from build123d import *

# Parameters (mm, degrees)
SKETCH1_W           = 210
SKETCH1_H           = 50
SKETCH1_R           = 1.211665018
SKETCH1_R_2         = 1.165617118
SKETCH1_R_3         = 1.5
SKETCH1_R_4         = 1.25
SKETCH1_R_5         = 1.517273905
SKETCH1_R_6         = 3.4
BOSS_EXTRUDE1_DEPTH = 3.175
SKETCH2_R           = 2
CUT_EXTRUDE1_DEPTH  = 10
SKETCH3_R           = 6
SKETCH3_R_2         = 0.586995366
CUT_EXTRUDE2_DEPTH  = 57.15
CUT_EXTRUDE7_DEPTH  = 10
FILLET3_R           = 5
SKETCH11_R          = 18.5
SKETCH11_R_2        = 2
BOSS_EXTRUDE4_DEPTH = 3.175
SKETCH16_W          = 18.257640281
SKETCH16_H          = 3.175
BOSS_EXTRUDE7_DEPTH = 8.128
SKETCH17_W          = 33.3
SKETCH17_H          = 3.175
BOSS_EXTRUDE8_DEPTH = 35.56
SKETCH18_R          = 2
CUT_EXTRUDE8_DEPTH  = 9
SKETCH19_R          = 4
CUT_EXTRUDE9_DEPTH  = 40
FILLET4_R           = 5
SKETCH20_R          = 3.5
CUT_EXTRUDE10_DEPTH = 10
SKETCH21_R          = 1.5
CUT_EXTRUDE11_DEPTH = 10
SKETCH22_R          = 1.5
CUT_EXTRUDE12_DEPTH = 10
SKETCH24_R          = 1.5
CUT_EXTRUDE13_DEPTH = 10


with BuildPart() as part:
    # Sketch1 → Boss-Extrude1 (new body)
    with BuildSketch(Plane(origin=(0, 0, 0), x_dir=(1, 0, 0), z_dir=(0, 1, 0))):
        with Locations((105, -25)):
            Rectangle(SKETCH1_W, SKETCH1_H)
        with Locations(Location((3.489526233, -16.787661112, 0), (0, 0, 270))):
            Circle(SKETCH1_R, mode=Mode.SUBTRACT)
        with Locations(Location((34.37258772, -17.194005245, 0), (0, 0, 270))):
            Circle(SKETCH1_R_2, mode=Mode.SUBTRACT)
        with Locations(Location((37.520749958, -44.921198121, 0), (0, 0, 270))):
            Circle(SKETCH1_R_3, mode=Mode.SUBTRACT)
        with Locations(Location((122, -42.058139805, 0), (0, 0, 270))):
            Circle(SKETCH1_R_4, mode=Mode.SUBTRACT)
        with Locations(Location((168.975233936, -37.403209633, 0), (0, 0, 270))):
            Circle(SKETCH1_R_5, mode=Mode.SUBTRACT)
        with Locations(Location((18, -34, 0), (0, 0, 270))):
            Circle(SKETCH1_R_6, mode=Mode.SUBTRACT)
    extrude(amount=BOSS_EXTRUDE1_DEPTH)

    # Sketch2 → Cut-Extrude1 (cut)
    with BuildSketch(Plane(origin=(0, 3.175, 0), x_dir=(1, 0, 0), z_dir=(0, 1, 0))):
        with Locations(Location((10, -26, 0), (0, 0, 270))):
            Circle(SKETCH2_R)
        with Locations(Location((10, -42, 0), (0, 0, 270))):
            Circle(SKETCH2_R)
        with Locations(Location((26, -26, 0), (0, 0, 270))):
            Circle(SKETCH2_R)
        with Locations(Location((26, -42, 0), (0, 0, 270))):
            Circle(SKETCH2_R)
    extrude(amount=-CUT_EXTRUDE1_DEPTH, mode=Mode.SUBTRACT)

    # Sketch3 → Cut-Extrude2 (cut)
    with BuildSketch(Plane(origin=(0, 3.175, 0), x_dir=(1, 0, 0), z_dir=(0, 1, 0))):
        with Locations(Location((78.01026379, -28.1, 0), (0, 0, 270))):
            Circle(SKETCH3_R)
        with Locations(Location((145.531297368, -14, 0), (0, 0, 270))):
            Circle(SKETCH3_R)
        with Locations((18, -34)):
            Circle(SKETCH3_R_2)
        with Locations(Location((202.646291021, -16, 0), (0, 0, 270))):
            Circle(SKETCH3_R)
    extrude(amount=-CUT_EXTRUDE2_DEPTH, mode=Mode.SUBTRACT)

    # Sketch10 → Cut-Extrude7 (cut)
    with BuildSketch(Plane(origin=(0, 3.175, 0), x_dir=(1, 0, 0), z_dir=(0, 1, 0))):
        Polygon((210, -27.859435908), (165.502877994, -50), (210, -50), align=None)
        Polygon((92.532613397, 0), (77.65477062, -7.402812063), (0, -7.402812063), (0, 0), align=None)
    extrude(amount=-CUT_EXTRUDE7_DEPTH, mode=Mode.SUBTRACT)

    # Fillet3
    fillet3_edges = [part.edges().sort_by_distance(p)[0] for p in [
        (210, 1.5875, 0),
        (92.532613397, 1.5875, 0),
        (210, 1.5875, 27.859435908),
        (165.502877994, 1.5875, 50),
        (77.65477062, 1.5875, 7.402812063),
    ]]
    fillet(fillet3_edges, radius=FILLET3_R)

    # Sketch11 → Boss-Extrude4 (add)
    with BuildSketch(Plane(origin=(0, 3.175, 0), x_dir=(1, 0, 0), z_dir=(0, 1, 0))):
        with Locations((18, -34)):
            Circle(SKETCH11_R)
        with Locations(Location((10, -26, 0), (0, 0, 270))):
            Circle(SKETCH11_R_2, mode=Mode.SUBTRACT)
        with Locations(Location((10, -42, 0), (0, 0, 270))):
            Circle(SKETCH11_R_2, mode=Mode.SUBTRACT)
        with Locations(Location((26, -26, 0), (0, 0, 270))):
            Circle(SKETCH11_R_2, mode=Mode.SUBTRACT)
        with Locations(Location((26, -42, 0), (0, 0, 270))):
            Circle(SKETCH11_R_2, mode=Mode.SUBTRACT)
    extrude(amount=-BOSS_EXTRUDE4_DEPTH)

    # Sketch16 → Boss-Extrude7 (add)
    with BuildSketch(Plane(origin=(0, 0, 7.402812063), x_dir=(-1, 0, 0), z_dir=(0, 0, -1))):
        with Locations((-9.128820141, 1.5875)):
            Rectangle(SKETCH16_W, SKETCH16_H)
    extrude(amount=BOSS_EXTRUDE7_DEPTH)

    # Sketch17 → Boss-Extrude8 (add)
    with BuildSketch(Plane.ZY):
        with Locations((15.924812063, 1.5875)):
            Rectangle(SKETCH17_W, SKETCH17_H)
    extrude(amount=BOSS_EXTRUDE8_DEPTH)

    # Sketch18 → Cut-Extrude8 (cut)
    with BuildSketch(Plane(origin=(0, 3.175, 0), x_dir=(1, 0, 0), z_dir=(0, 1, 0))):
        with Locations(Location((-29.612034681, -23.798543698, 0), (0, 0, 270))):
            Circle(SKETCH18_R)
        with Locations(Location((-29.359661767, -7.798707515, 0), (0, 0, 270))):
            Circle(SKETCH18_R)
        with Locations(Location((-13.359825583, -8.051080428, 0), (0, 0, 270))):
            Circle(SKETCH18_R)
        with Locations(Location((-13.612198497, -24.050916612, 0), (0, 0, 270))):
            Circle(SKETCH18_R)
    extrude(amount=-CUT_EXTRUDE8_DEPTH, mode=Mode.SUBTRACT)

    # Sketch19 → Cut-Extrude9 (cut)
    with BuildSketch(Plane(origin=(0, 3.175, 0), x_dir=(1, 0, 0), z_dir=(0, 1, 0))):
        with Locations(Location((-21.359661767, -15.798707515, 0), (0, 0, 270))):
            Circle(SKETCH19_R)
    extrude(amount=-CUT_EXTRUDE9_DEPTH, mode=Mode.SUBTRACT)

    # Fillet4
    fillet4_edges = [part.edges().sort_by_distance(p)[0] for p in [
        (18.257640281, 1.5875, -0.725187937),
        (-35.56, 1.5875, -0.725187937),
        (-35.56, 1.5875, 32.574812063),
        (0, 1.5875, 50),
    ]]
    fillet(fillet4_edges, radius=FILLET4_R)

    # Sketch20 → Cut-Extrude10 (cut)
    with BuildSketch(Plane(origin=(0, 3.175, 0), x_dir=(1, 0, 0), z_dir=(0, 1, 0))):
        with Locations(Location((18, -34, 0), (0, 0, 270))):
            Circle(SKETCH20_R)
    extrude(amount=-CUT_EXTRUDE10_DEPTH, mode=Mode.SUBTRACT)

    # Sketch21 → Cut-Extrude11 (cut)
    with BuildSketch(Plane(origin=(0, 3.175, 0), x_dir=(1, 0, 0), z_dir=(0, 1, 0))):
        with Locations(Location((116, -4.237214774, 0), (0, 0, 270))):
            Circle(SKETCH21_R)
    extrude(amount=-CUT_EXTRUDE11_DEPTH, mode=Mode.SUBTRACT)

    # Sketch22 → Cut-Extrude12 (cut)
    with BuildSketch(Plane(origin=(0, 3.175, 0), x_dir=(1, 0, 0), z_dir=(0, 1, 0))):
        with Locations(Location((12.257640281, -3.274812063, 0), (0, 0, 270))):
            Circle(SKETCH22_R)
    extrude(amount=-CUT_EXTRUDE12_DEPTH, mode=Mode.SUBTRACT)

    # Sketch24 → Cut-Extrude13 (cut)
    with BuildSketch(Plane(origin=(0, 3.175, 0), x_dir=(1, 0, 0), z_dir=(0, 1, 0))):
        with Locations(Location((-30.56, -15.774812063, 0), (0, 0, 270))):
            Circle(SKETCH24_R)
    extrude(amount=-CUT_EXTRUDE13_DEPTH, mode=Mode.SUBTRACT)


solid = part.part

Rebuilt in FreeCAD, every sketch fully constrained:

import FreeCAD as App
import Part
import Sketcher
from FreeCAD import Vector
Q = App.Units.Quantity


def edges_at(feature, points):
    """Names of the edges that pass closest to the given points."""
    edges = feature.Shape.Edges
    near = lambda p: min(range(len(edges)), key=lambda i: edges[i].distToShape(Part.Vertex(*p))[0])
    return sorted({f"Edge{near(p) + 1}" for p in points})


def add_polygon(sketch, points):
    """Adds a closed chain of lines whose ends are joined by coincident constraints."""
    first, n = sketch.GeometryCount, len(points)
    for a, b in zip(points, points[1:] + points[:1]):
        sketch.addGeometry(Part.LineSegment(App.Vector(*a, 0), App.Vector(*b, 0)), False)
    for i in range(n):
        sketch.addConstraint(Sketcher.Constraint("Coincident", first + i, 2, first + (i + 1) % n, 1))

doc = App.newDocument("Part")
body = doc.addObject("PartDesign::Body", "Body")

# Sketch on XZ plane
sketch1 = doc.addObject("Sketcher::SketchObject", "Sketch")
body.addObject(sketch1)
sketch1.AttachmentSupport = (doc.XZ_Plane, [""])
sketch1.MapMode = "FlatFace"
add_polygon(sketch1, [(0, 0), (0, 50), (210, 50), (210, 0)])  # lines 0-3
sketch1.addGeometry(Part.Circle(Vector(37.5, 44.9, 0), Vector(0, 0, 1), 1.5), False)  # 4
sketch1.addGeometry(Part.Circle(Vector(18, 34, 0), Vector(0, 0, 1), 3.4), False)  # 5
sketch1.addGeometry(Part.Circle(Vector(122, 42.1, 0), Vector(0, 0, 1), 1.2), False)  # 6
sketch1.addGeometry(Part.Circle(Vector(169, 37.4, 0), Vector(0, 0, 1), 1.5), False)  # 7
sketch1.addGeometry(Part.Circle(Vector(3.5, 16.8, 0), Vector(0, 0, 1), 1.2), False)  # 8
sketch1.addGeometry(Part.Circle(Vector(34.4, 17.2, 0), Vector(0, 0, 1), 1.2), False)  # 9
sketch1.addConstraint([
    Sketcher.Constraint("Vertical", 0),
    Sketcher.Constraint("Horizontal", 1),
    Sketcher.Constraint("Vertical", 2),
    Sketcher.Constraint("Horizontal", 3),
    Sketcher.Constraint("Coincident", 3, 2, -1, 1),
    Sketcher.Constraint("Diameter", 4, Q("3 mm")),
    Sketcher.Constraint("Diameter", 5, Q("6.8 mm")),
    Sketcher.Constraint("Diameter", 6, Q("2.5 mm")),
    Sketcher.Constraint("DistanceX", 1, 1, 1, 2, Q("210 mm")),
    Sketcher.Constraint("DistanceY", 0, 1, 0, 2, Q("50 mm")),
    Sketcher.Constraint("DistanceX", -1, 1, 5, 3, Q("18 mm")),
    Sketcher.Constraint("DistanceY", -1, 1, 5, 3, Q("34 mm")),
    Sketcher.Constraint("DistanceX", -1, 1, 6, 3, Q("122 mm")),
    Sketcher.Constraint("Diameter", 8, Q("2.42333 mm")),
    Sketcher.Constraint("Diameter", 7, Q("3.034548 mm")),
    Sketcher.Constraint("Diameter", 9, Q("2.331234 mm")),
    Sketcher.Constraint("DistanceY", -1, 1, 4, 3, Q("44.921198 mm")),
    Sketcher.Constraint("DistanceX", -1, 1, 4, 3, Q("37.52075 mm")),
    Sketcher.Constraint("DistanceY", -1, 1, 6, 3, Q("42.05814 mm")),
    Sketcher.Constraint("DistanceY", -1, 1, 7, 3, Q("37.40321 mm")),
    Sketcher.Constraint("DistanceY", -1, 1, 8, 3, Q("16.787661 mm")),
    Sketcher.Constraint("DistanceX", 8, 3, 9, 3, Q("30.883061 mm")),
    Sketcher.Constraint("DistanceX", -1, 1, 7, 3, Q("168.975234 mm")),
    Sketcher.Constraint("DistanceX", -1, 1, 8, 3, Q("3.489526 mm")),
    Sketcher.Constraint("DistanceY", -1, 1, 9, 3, Q("17.194005 mm")),
])
pad1 = doc.addObject("PartDesign::Pad", "Pad")
body.addObject(pad1)
pad1.Profile = sketch1
pad1.Length = 3.175
pad1.Reversed = True

# Sketch on XZ plane
sketch2 = doc.addObject("Sketcher::SketchObject", "Sketch001")
body.addObject(sketch2)
sketch2.AttachmentSupport = (doc.XZ_Plane, [""])
sketch2.MapMode = "FlatFace"
sketch2.AttachmentOffset = App.Placement(Vector(0, 0, -3.175), App.Rotation())
sketch2.addGeometry([
    Part.Circle(Vector(10, 26, 0), Vector(0, 0, 1), 2),
    Part.Circle(Vector(10, 42, 0), Vector(0, 0, 1), 2),
    Part.Circle(Vector(26, 26, 0), Vector(0, 0, 1), 2),
    Part.Circle(Vector(26, 42, 0), Vector(0, 0, 1), 2),
], False)
sketch2.addConstraint([
    Sketcher.Constraint("Equal", 0, 1),
    Sketcher.Constraint("Equal", 1, 2),
    Sketcher.Constraint("Equal", 2, 3),
    Sketcher.Constraint("Horizontal", 0, 3, 2, 3),
    Sketcher.Constraint("Horizontal", 1, 3, 3, 3),
    Sketcher.Constraint("Vertical", 0, 3, 1, 3),
    Sketcher.Constraint("Vertical", 2, 3, 3, 3),
    Sketcher.Constraint("Diameter", 0, Q("4 mm")),
    Sketcher.Constraint("DistanceX", -1, 1, 0, 3, Q("10 mm")),
    Sketcher.Constraint("DistanceY", -1, 1, 0, 3, Q("26 mm")),
    Sketcher.Constraint("DistanceY", -1, 1, 1, 3, Q("42 mm")),
    Sketcher.Constraint("DistanceX", -1, 1, 2, 3, Q("26 mm")),
])
pocket1 = doc.addObject("PartDesign::Pocket", "Pocket")
body.addObject(pocket1)
pocket1.Profile = sketch2
pocket1.Length = 10
pocket1.Reversed = True

# Sketch on XZ plane
sketch3 = doc.addObject("Sketcher::SketchObject", "Sketch002")
body.addObject(sketch3)
sketch3.AttachmentSupport = (doc.XZ_Plane, [""])
sketch3.MapMode = "FlatFace"
sketch3.AttachmentOffset = App.Placement(Vector(0, 0, -3.175), App.Rotation())
sketch3.addGeometry([
    Part.Circle(Vector(78, 28.1, 0), Vector(0, 0, 1), 6),
    Part.Circle(Vector(145.5, 14, 0), Vector(0, 0, 1), 6),
    Part.Circle(Vector(18, 34, 0), Vector(0, 0, 1), 0.6),
    Part.Circle(Vector(202.6, 16, 0), Vector(0, 0, 1), 6),
], False)
sketch3.addConstraint([
    Sketcher.Constraint("Equal", 0, 1),
    Sketcher.Constraint("Equal", 1, 3),
    Sketcher.Constraint("Diameter", 0, Q("12 mm")),
    Sketcher.Constraint("DistanceY", -1, 1, 1, 3, Q("14 mm")),
    Sketcher.Constraint("DistanceX", -1, 1, 2, 3, Q("18 mm")),
    Sketcher.Constraint("DistanceY", -1, 1, 2, 3, Q("34 mm")),
    Sketcher.Constraint("DistanceY", -1, 1, 3, 3, Q("16 mm")),
    Sketcher.Constraint("DistanceY", -1, 1, 0, 3, Q("28.1 mm")),
    Sketcher.Constraint("Diameter", 2, Q("1.173991 mm")),
    Sketcher.Constraint("DistanceX", -1, 1, 3, 3, Q("202.646291 mm")),
    Sketcher.Constraint("DistanceX", -1, 1, 0, 3, Q("78.010264 mm")),
    Sketcher.Constraint("DistanceX", -1, 1, 1, 3, Q("145.531297 mm")),
])
pocket2 = doc.addObject("PartDesign::Pocket", "Pocket001")
body.addObject(pocket2)
pocket2.Profile = sketch3
pocket2.Length = 57.15
pocket2.Reversed = True

# Sketch on XZ plane
sketch4 = doc.addObject("Sketcher::SketchObject", "Sketch003")
body.addObject(sketch4)
sketch4.AttachmentSupport = (doc.XZ_Plane, [""])
sketch4.MapMode = "FlatFace"
sketch4.AttachmentOffset = App.Placement(Vector(0, 0, -3.175), App.Rotation())
add_polygon(sketch4, [(210, 28), (166, 50), (210, 50)])  # lines 0-2
add_polygon(sketch4, [(78, 7), (93, 0), (0, 0), (0, 7)])  # lines 3-6
sketch4.addConstraint([
    Sketcher.Constraint("Horizontal", 1),
    Sketcher.Constraint("Vertical", 2),
    Sketcher.Constraint("Horizontal", 4),
    Sketcher.Constraint("Vertical", 5),
    Sketcher.Constraint("Horizontal", 6),
    Sketcher.Constraint("Coincident", 4, 2, -1, 1),
    Sketcher.Constraint("Parallel", 0, 3),
    Sketcher.Constraint("DistanceY", -1, 1, 0, 2, Q("50 mm")),
    Sketcher.Constraint("DistanceX", -1, 1, 1, 2, Q("210 mm")),
    Sketcher.Constraint("DistanceX", 6, 1, 6, 2, Q("77.654771 mm")),
    Sketcher.Constraint("Distance", 0, Q("49.701091 mm")),
    Sketcher.Constraint("DistanceX", 1, 1, 1, 2, Q("44.497122 mm")),
    Sketcher.Constraint("DistanceX", 4, 2, 4, 1, Q("92.532613 mm")),
])
pocket3 = doc.addObject("PartDesign::Pocket", "Pocket002")
body.addObject(pocket3)
pocket3.Profile = sketch4
pocket3.Length = 10
pocket3.Reversed = True
doc.recompute()

fillet = doc.addObject("PartDesign::Fillet", "Fillet")
body.addObject(fillet)
fillet.Base = (pocket3, edges_at(pocket3, [
    (210, 1.587, 0),
    (92.533, 1.587, 0),
    (210, 1.587, 27.859),
    (165.503, 1.587, 50),
    (77.655, 1.587, 7.403),
]))
fillet.Radius = 5

# Sketch on XZ plane
sketch5 = doc.addObject("Sketcher::SketchObject", "Sketch004")
body.addObject(sketch5)
sketch5.AttachmentSupport = (doc.XZ_Plane, [""])
sketch5.MapMode = "FlatFace"
sketch5.AttachmentOffset = App.Placement(Vector(0, 0, -3.175), App.Rotation())
sketch5.addGeometry([
    Part.Circle(Vector(18, 34, 0), Vector(0, 0, 1), 18.5),  # 0
    Part.Circle(Vector(10, 42, 0), Vector(0, 0, 1), 2),  # 1
    Part.Circle(Vector(26, 42, 0), Vector(0, 0, 1), 2),  # 2
    Part.Circle(Vector(10, 26, 0), Vector(0, 0, 1), 2),  # 3
    Part.Circle(Vector(26, 26, 0), Vector(0, 0, 1), 2),  # 4
], False)
sketch5.addConstraint([
    Sketcher.Constraint("Equal", 1, 2),
    Sketcher.Constraint("Equal", 2, 3),
    Sketcher.Constraint("Equal", 3, 4),
    Sketcher.Constraint("Horizontal", 1, 3, 2, 3),
    Sketcher.Constraint("Horizontal", 3, 3, 4, 3),
    Sketcher.Constraint("Vertical", 1, 3, 3, 3),
    Sketcher.Constraint("Vertical", 2, 3, 4, 3),
    Sketcher.Constraint("Diameter", 0, Q("37 mm")),
    Sketcher.Constraint("Diameter", 1, Q("4 mm")),
    Sketcher.Constraint("DistanceX", -1, 1, 0, 3, Q("18 mm")),
    Sketcher.Constraint("DistanceY", -1, 1, 0, 3, Q("34 mm")),
    Sketcher.Constraint("DistanceX", -1, 1, 1, 3, Q("10 mm")),
    Sketcher.Constraint("DistanceY", -1, 1, 1, 3, Q("42 mm")),
    Sketcher.Constraint("DistanceX", -1, 1, 2, 3, Q("26 mm")),
    Sketcher.Constraint("DistanceY", -1, 1, 3, 3, Q("26 mm")),
])
pad2 = doc.addObject("PartDesign::Pad", "Pad001")
body.addObject(pad2)
pad2.Profile = sketch5
pad2.Length = 3.175

# Sketch on XY plane
sketch6 = doc.addObject("Sketcher::SketchObject", "Sketch005")
body.addObject(sketch6)
sketch6.AttachmentSupport = (doc.XY_Plane, [""])
sketch6.MapMode = "FlatFace"
sketch6.AttachmentOffset = App.Placement(Vector(0, 0, 7.402812), App.Rotation())
add_polygon(sketch6, [(18.3, 3.2), (18.3, 0), (0, 0), (0, 3.2)])  # lines 0-3
sketch6.addConstraint([
    Sketcher.Constraint("Vertical", 0),
    Sketcher.Constraint("Horizontal", 1),
    Sketcher.Constraint("Vertical", 2),
    Sketcher.Constraint("Horizontal", 3),
    Sketcher.Constraint("Coincident", 1, 2, -1, 1),
    Sketcher.Constraint("DistanceY", 0, 2, 0, 1, Q("3.175 mm")),
    Sketcher.Constraint("DistanceX", 1, 2, 1, 1, Q("18.25764 mm")),
])
pad3 = doc.addObject("PartDesign::Pad", "Pad002")
body.addObject(pad3)
pad3.Profile = sketch6
pad3.Length = 8.128
pad3.Reversed = True

# Sketch on YZ plane
sketch7 = doc.addObject("Sketcher::SketchObject", "Sketch006")
body.addObject(sketch7)
sketch7.AttachmentSupport = (doc.YZ_Plane, [""])
sketch7.MapMode = "FlatFace"
add_polygon(sketch7, [(3.2, -0.7), (0, -0.7), (0, 32.6), (3.2, 32.6)])  # lines 0-3
sketch7.addConstraint([
    Sketcher.Constraint("Horizontal", 0),
    Sketcher.Constraint("Vertical", 1),
    Sketcher.Constraint("Horizontal", 2),
    Sketcher.Constraint("Vertical", 3),
    Sketcher.Constraint("PointOnObject", 0, 2, -2),
    Sketcher.Constraint("DistanceY", 1, 1, 1, 2, Q("33.3 mm")),
    Sketcher.Constraint("DistanceX", 0, 2, 0, 1, Q("3.175 mm")),
    Sketcher.Constraint("DistanceY", 0, 2, -1, 1, Q("0.725188 mm")),
])
pad4 = doc.addObject("PartDesign::Pad", "Pad003")
body.addObject(pad4)
pad4.Profile = sketch7
pad4.Length = 35.56
pad4.Reversed = True

# Sketch on XZ plane
sketch8 = doc.addObject("Sketcher::SketchObject", "Sketch007")
body.addObject(sketch8)
sketch8.AttachmentSupport = (doc.XZ_Plane, [""])
sketch8.MapMode = "FlatFace"
sketch8.AttachmentOffset = App.Placement(Vector(0, 0, -3.175), App.Rotation())
sketch8.addGeometry([
    Part.Circle(Vector(-29.6, 23.8, 0), Vector(0, 0, 1), 2),
    Part.Circle(Vector(-29.4, 7.8, 0), Vector(0, 0, 1), 2),
    Part.Circle(Vector(-13.4, 8.1, 0), Vector(0, 0, 1), 2),
    Part.Circle(Vector(-13.6, 24.1, 0), Vector(0, 0, 1), 2),
], False)
sketch8.addConstraint([
    Sketcher.Constraint("Equal", 0, 1),
    Sketcher.Constraint("Equal", 1, 2),
    Sketcher.Constraint("Equal", 2, 3),
    Sketcher.Constraint("Diameter", 0, Q("4 mm")),
    Sketcher.Constraint("DistanceX", 3, 3, -1, 1, Q("13.612198 mm")),
    Sketcher.Constraint("DistanceX", 1, 3, -1, 1, Q("29.359662 mm")),
    Sketcher.Constraint("DistanceY", -1, 1, 2, 3, Q("8.05108 mm")),
    Sketcher.Constraint("DistanceX", 0, 3, 2, 3, Q("16.252209 mm")),
    Sketcher.Constraint("DistanceY", 1, 3, 3, 3, Q("16.252209 mm")),
    Sketcher.Constraint("DistanceX", 0, 3, -1, 1, Q("29.612035 mm")),
    Sketcher.Constraint("DistanceY", -1, 1, 0, 3, Q("23.798544 mm")),
    Sketcher.Constraint("DistanceY", -1, 1, 1, 3, Q("7.798708 mm")),
])
pocket4 = doc.addObject("PartDesign::Pocket", "Pocket003")
body.addObject(pocket4)
pocket4.Profile = sketch8
pocket4.Length = 9
pocket4.Reversed = True

# Sketch on XZ plane
sketch9 = doc.addObject("Sketcher::SketchObject", "Sketch008")
body.addObject(sketch9)
sketch9.AttachmentSupport = (doc.XZ_Plane, [""])
sketch9.MapMode = "FlatFace"
sketch9.AttachmentOffset = App.Placement(Vector(0, 0, -3.175), App.Rotation())
sketch9.addGeometry(Part.Circle(Vector(-21.4, 15.8, 0), Vector(0, 0, 1), 4), False)
sketch9.addConstraint([
    Sketcher.Constraint("Diameter", 0, Q("8 mm")),
    Sketcher.Constraint("DistanceX", 0, 3, -1, 1, Q("21.359662 mm")),
    Sketcher.Constraint("DistanceY", -1, 1, 0, 3, Q("15.798708 mm")),
])
pocket5 = doc.addObject("PartDesign::Pocket", "Pocket004")
body.addObject(pocket5)
pocket5.Profile = sketch9
pocket5.Length = 40
pocket5.Reversed = True
doc.recompute()

fillet2 = doc.addObject("PartDesign::Fillet", "Fillet001")
body.addObject(fillet2)
fillet2.Base = (pocket5, edges_at(pocket5, [
    (18.258, 1.587, -0.725),
    (-35.56, 1.587, -0.725),
    (-35.56, 1.587, 32.575),
    (0, 1.587, 50),
]))
fillet2.Radius = 5

# Sketch on XZ plane
sketch10 = doc.addObject("Sketcher::SketchObject", "Sketch009")
body.addObject(sketch10)
sketch10.AttachmentSupport = (doc.XZ_Plane, [""])
sketch10.MapMode = "FlatFace"
sketch10.AttachmentOffset = App.Placement(Vector(0, 0, -3.175), App.Rotation())
sketch10.addGeometry(Part.Circle(Vector(18, 34, 0), Vector(0, 0, 1), 3.5), False)
sketch10.addConstraint([
    Sketcher.Constraint("Diameter", 0, Q("7 mm")),
    Sketcher.Constraint("DistanceX", -1, 1, 0, 3, Q("18 mm")),
    Sketcher.Constraint("DistanceY", -1, 1, 0, 3, Q("34 mm")),
])
pocket6 = doc.addObject("PartDesign::Pocket", "Pocket005")
body.addObject(pocket6)
pocket6.Profile = sketch10
pocket6.Length = 10
pocket6.Reversed = True

# Sketch on XZ plane
sketch11 = doc.addObject("Sketcher::SketchObject", "Sketch010")
body.addObject(sketch11)
sketch11.AttachmentSupport = (doc.XZ_Plane, [""])
sketch11.MapMode = "FlatFace"
sketch11.AttachmentOffset = App.Placement(Vector(0, 0, -3.175), App.Rotation())
sketch11.addGeometry(Part.Circle(Vector(116, 4.2, 0), Vector(0, 0, 1), 1.5), False)
sketch11.addConstraint([
    Sketcher.Constraint("Diameter", 0, Q("3 mm")),
    Sketcher.Constraint("DistanceX", -1, 1, 0, 3, Q("116 mm")),
    Sketcher.Constraint("DistanceY", -1, 1, 0, 3, Q("4.237215 mm")),
])
pocket7 = doc.addObject("PartDesign::Pocket", "Pocket006")
body.addObject(pocket7)
pocket7.Profile = sketch11
pocket7.Length = 10
pocket7.Reversed = True

# Sketch on XZ plane
sketch12 = doc.addObject("Sketcher::SketchObject", "Sketch011")
body.addObject(sketch12)
sketch12.AttachmentSupport = (doc.XZ_Plane, [""])
sketch12.MapMode = "FlatFace"
sketch12.AttachmentOffset = App.Placement(Vector(0, 0, -3.175), App.Rotation())
sketch12.addGeometry(Part.Circle(Vector(12.3, 3.3, 0), Vector(0, 0, 1), 1.5), False)
sketch12.addConstraint([
    Sketcher.Constraint("Diameter", 0, Q("3 mm")),
    Sketcher.Constraint("DistanceX", -1, 1, 0, 3, Q("12.25764 mm")),
    Sketcher.Constraint("DistanceY", -1, 1, 0, 3, Q("3.274812 mm")),
])
pocket8 = doc.addObject("PartDesign::Pocket", "Pocket007")
body.addObject(pocket8)
pocket8.Profile = sketch12
pocket8.Length = 10
pocket8.Reversed = True

# Sketch on XZ plane
sketch13 = doc.addObject("Sketcher::SketchObject", "Sketch012")
body.addObject(sketch13)
sketch13.AttachmentSupport = (doc.XZ_Plane, [""])
sketch13.MapMode = "FlatFace"
sketch13.AttachmentOffset = App.Placement(Vector(0, 0, -3.175), App.Rotation())
sketch13.addGeometry(Part.Circle(Vector(-30.6, 15.8, 0), Vector(0, 0, 1), 1.5), False)
sketch13.addConstraint([
    Sketcher.Constraint("Diameter", 0, Q("3 mm")),
    Sketcher.Constraint("DistanceX", 0, 3, -1, 1, Q("30.56 mm")),
    Sketcher.Constraint("DistanceY", -1, 1, 0, 3, Q("15.774812 mm")),
])
pocket9 = doc.addObject("PartDesign::Pocket", "Pocket008")
body.addObject(pocket9)
pocket9.Profile = sketch13
pocket9.Length = 10
pocket9.Reversed = True

doc.recompute()
